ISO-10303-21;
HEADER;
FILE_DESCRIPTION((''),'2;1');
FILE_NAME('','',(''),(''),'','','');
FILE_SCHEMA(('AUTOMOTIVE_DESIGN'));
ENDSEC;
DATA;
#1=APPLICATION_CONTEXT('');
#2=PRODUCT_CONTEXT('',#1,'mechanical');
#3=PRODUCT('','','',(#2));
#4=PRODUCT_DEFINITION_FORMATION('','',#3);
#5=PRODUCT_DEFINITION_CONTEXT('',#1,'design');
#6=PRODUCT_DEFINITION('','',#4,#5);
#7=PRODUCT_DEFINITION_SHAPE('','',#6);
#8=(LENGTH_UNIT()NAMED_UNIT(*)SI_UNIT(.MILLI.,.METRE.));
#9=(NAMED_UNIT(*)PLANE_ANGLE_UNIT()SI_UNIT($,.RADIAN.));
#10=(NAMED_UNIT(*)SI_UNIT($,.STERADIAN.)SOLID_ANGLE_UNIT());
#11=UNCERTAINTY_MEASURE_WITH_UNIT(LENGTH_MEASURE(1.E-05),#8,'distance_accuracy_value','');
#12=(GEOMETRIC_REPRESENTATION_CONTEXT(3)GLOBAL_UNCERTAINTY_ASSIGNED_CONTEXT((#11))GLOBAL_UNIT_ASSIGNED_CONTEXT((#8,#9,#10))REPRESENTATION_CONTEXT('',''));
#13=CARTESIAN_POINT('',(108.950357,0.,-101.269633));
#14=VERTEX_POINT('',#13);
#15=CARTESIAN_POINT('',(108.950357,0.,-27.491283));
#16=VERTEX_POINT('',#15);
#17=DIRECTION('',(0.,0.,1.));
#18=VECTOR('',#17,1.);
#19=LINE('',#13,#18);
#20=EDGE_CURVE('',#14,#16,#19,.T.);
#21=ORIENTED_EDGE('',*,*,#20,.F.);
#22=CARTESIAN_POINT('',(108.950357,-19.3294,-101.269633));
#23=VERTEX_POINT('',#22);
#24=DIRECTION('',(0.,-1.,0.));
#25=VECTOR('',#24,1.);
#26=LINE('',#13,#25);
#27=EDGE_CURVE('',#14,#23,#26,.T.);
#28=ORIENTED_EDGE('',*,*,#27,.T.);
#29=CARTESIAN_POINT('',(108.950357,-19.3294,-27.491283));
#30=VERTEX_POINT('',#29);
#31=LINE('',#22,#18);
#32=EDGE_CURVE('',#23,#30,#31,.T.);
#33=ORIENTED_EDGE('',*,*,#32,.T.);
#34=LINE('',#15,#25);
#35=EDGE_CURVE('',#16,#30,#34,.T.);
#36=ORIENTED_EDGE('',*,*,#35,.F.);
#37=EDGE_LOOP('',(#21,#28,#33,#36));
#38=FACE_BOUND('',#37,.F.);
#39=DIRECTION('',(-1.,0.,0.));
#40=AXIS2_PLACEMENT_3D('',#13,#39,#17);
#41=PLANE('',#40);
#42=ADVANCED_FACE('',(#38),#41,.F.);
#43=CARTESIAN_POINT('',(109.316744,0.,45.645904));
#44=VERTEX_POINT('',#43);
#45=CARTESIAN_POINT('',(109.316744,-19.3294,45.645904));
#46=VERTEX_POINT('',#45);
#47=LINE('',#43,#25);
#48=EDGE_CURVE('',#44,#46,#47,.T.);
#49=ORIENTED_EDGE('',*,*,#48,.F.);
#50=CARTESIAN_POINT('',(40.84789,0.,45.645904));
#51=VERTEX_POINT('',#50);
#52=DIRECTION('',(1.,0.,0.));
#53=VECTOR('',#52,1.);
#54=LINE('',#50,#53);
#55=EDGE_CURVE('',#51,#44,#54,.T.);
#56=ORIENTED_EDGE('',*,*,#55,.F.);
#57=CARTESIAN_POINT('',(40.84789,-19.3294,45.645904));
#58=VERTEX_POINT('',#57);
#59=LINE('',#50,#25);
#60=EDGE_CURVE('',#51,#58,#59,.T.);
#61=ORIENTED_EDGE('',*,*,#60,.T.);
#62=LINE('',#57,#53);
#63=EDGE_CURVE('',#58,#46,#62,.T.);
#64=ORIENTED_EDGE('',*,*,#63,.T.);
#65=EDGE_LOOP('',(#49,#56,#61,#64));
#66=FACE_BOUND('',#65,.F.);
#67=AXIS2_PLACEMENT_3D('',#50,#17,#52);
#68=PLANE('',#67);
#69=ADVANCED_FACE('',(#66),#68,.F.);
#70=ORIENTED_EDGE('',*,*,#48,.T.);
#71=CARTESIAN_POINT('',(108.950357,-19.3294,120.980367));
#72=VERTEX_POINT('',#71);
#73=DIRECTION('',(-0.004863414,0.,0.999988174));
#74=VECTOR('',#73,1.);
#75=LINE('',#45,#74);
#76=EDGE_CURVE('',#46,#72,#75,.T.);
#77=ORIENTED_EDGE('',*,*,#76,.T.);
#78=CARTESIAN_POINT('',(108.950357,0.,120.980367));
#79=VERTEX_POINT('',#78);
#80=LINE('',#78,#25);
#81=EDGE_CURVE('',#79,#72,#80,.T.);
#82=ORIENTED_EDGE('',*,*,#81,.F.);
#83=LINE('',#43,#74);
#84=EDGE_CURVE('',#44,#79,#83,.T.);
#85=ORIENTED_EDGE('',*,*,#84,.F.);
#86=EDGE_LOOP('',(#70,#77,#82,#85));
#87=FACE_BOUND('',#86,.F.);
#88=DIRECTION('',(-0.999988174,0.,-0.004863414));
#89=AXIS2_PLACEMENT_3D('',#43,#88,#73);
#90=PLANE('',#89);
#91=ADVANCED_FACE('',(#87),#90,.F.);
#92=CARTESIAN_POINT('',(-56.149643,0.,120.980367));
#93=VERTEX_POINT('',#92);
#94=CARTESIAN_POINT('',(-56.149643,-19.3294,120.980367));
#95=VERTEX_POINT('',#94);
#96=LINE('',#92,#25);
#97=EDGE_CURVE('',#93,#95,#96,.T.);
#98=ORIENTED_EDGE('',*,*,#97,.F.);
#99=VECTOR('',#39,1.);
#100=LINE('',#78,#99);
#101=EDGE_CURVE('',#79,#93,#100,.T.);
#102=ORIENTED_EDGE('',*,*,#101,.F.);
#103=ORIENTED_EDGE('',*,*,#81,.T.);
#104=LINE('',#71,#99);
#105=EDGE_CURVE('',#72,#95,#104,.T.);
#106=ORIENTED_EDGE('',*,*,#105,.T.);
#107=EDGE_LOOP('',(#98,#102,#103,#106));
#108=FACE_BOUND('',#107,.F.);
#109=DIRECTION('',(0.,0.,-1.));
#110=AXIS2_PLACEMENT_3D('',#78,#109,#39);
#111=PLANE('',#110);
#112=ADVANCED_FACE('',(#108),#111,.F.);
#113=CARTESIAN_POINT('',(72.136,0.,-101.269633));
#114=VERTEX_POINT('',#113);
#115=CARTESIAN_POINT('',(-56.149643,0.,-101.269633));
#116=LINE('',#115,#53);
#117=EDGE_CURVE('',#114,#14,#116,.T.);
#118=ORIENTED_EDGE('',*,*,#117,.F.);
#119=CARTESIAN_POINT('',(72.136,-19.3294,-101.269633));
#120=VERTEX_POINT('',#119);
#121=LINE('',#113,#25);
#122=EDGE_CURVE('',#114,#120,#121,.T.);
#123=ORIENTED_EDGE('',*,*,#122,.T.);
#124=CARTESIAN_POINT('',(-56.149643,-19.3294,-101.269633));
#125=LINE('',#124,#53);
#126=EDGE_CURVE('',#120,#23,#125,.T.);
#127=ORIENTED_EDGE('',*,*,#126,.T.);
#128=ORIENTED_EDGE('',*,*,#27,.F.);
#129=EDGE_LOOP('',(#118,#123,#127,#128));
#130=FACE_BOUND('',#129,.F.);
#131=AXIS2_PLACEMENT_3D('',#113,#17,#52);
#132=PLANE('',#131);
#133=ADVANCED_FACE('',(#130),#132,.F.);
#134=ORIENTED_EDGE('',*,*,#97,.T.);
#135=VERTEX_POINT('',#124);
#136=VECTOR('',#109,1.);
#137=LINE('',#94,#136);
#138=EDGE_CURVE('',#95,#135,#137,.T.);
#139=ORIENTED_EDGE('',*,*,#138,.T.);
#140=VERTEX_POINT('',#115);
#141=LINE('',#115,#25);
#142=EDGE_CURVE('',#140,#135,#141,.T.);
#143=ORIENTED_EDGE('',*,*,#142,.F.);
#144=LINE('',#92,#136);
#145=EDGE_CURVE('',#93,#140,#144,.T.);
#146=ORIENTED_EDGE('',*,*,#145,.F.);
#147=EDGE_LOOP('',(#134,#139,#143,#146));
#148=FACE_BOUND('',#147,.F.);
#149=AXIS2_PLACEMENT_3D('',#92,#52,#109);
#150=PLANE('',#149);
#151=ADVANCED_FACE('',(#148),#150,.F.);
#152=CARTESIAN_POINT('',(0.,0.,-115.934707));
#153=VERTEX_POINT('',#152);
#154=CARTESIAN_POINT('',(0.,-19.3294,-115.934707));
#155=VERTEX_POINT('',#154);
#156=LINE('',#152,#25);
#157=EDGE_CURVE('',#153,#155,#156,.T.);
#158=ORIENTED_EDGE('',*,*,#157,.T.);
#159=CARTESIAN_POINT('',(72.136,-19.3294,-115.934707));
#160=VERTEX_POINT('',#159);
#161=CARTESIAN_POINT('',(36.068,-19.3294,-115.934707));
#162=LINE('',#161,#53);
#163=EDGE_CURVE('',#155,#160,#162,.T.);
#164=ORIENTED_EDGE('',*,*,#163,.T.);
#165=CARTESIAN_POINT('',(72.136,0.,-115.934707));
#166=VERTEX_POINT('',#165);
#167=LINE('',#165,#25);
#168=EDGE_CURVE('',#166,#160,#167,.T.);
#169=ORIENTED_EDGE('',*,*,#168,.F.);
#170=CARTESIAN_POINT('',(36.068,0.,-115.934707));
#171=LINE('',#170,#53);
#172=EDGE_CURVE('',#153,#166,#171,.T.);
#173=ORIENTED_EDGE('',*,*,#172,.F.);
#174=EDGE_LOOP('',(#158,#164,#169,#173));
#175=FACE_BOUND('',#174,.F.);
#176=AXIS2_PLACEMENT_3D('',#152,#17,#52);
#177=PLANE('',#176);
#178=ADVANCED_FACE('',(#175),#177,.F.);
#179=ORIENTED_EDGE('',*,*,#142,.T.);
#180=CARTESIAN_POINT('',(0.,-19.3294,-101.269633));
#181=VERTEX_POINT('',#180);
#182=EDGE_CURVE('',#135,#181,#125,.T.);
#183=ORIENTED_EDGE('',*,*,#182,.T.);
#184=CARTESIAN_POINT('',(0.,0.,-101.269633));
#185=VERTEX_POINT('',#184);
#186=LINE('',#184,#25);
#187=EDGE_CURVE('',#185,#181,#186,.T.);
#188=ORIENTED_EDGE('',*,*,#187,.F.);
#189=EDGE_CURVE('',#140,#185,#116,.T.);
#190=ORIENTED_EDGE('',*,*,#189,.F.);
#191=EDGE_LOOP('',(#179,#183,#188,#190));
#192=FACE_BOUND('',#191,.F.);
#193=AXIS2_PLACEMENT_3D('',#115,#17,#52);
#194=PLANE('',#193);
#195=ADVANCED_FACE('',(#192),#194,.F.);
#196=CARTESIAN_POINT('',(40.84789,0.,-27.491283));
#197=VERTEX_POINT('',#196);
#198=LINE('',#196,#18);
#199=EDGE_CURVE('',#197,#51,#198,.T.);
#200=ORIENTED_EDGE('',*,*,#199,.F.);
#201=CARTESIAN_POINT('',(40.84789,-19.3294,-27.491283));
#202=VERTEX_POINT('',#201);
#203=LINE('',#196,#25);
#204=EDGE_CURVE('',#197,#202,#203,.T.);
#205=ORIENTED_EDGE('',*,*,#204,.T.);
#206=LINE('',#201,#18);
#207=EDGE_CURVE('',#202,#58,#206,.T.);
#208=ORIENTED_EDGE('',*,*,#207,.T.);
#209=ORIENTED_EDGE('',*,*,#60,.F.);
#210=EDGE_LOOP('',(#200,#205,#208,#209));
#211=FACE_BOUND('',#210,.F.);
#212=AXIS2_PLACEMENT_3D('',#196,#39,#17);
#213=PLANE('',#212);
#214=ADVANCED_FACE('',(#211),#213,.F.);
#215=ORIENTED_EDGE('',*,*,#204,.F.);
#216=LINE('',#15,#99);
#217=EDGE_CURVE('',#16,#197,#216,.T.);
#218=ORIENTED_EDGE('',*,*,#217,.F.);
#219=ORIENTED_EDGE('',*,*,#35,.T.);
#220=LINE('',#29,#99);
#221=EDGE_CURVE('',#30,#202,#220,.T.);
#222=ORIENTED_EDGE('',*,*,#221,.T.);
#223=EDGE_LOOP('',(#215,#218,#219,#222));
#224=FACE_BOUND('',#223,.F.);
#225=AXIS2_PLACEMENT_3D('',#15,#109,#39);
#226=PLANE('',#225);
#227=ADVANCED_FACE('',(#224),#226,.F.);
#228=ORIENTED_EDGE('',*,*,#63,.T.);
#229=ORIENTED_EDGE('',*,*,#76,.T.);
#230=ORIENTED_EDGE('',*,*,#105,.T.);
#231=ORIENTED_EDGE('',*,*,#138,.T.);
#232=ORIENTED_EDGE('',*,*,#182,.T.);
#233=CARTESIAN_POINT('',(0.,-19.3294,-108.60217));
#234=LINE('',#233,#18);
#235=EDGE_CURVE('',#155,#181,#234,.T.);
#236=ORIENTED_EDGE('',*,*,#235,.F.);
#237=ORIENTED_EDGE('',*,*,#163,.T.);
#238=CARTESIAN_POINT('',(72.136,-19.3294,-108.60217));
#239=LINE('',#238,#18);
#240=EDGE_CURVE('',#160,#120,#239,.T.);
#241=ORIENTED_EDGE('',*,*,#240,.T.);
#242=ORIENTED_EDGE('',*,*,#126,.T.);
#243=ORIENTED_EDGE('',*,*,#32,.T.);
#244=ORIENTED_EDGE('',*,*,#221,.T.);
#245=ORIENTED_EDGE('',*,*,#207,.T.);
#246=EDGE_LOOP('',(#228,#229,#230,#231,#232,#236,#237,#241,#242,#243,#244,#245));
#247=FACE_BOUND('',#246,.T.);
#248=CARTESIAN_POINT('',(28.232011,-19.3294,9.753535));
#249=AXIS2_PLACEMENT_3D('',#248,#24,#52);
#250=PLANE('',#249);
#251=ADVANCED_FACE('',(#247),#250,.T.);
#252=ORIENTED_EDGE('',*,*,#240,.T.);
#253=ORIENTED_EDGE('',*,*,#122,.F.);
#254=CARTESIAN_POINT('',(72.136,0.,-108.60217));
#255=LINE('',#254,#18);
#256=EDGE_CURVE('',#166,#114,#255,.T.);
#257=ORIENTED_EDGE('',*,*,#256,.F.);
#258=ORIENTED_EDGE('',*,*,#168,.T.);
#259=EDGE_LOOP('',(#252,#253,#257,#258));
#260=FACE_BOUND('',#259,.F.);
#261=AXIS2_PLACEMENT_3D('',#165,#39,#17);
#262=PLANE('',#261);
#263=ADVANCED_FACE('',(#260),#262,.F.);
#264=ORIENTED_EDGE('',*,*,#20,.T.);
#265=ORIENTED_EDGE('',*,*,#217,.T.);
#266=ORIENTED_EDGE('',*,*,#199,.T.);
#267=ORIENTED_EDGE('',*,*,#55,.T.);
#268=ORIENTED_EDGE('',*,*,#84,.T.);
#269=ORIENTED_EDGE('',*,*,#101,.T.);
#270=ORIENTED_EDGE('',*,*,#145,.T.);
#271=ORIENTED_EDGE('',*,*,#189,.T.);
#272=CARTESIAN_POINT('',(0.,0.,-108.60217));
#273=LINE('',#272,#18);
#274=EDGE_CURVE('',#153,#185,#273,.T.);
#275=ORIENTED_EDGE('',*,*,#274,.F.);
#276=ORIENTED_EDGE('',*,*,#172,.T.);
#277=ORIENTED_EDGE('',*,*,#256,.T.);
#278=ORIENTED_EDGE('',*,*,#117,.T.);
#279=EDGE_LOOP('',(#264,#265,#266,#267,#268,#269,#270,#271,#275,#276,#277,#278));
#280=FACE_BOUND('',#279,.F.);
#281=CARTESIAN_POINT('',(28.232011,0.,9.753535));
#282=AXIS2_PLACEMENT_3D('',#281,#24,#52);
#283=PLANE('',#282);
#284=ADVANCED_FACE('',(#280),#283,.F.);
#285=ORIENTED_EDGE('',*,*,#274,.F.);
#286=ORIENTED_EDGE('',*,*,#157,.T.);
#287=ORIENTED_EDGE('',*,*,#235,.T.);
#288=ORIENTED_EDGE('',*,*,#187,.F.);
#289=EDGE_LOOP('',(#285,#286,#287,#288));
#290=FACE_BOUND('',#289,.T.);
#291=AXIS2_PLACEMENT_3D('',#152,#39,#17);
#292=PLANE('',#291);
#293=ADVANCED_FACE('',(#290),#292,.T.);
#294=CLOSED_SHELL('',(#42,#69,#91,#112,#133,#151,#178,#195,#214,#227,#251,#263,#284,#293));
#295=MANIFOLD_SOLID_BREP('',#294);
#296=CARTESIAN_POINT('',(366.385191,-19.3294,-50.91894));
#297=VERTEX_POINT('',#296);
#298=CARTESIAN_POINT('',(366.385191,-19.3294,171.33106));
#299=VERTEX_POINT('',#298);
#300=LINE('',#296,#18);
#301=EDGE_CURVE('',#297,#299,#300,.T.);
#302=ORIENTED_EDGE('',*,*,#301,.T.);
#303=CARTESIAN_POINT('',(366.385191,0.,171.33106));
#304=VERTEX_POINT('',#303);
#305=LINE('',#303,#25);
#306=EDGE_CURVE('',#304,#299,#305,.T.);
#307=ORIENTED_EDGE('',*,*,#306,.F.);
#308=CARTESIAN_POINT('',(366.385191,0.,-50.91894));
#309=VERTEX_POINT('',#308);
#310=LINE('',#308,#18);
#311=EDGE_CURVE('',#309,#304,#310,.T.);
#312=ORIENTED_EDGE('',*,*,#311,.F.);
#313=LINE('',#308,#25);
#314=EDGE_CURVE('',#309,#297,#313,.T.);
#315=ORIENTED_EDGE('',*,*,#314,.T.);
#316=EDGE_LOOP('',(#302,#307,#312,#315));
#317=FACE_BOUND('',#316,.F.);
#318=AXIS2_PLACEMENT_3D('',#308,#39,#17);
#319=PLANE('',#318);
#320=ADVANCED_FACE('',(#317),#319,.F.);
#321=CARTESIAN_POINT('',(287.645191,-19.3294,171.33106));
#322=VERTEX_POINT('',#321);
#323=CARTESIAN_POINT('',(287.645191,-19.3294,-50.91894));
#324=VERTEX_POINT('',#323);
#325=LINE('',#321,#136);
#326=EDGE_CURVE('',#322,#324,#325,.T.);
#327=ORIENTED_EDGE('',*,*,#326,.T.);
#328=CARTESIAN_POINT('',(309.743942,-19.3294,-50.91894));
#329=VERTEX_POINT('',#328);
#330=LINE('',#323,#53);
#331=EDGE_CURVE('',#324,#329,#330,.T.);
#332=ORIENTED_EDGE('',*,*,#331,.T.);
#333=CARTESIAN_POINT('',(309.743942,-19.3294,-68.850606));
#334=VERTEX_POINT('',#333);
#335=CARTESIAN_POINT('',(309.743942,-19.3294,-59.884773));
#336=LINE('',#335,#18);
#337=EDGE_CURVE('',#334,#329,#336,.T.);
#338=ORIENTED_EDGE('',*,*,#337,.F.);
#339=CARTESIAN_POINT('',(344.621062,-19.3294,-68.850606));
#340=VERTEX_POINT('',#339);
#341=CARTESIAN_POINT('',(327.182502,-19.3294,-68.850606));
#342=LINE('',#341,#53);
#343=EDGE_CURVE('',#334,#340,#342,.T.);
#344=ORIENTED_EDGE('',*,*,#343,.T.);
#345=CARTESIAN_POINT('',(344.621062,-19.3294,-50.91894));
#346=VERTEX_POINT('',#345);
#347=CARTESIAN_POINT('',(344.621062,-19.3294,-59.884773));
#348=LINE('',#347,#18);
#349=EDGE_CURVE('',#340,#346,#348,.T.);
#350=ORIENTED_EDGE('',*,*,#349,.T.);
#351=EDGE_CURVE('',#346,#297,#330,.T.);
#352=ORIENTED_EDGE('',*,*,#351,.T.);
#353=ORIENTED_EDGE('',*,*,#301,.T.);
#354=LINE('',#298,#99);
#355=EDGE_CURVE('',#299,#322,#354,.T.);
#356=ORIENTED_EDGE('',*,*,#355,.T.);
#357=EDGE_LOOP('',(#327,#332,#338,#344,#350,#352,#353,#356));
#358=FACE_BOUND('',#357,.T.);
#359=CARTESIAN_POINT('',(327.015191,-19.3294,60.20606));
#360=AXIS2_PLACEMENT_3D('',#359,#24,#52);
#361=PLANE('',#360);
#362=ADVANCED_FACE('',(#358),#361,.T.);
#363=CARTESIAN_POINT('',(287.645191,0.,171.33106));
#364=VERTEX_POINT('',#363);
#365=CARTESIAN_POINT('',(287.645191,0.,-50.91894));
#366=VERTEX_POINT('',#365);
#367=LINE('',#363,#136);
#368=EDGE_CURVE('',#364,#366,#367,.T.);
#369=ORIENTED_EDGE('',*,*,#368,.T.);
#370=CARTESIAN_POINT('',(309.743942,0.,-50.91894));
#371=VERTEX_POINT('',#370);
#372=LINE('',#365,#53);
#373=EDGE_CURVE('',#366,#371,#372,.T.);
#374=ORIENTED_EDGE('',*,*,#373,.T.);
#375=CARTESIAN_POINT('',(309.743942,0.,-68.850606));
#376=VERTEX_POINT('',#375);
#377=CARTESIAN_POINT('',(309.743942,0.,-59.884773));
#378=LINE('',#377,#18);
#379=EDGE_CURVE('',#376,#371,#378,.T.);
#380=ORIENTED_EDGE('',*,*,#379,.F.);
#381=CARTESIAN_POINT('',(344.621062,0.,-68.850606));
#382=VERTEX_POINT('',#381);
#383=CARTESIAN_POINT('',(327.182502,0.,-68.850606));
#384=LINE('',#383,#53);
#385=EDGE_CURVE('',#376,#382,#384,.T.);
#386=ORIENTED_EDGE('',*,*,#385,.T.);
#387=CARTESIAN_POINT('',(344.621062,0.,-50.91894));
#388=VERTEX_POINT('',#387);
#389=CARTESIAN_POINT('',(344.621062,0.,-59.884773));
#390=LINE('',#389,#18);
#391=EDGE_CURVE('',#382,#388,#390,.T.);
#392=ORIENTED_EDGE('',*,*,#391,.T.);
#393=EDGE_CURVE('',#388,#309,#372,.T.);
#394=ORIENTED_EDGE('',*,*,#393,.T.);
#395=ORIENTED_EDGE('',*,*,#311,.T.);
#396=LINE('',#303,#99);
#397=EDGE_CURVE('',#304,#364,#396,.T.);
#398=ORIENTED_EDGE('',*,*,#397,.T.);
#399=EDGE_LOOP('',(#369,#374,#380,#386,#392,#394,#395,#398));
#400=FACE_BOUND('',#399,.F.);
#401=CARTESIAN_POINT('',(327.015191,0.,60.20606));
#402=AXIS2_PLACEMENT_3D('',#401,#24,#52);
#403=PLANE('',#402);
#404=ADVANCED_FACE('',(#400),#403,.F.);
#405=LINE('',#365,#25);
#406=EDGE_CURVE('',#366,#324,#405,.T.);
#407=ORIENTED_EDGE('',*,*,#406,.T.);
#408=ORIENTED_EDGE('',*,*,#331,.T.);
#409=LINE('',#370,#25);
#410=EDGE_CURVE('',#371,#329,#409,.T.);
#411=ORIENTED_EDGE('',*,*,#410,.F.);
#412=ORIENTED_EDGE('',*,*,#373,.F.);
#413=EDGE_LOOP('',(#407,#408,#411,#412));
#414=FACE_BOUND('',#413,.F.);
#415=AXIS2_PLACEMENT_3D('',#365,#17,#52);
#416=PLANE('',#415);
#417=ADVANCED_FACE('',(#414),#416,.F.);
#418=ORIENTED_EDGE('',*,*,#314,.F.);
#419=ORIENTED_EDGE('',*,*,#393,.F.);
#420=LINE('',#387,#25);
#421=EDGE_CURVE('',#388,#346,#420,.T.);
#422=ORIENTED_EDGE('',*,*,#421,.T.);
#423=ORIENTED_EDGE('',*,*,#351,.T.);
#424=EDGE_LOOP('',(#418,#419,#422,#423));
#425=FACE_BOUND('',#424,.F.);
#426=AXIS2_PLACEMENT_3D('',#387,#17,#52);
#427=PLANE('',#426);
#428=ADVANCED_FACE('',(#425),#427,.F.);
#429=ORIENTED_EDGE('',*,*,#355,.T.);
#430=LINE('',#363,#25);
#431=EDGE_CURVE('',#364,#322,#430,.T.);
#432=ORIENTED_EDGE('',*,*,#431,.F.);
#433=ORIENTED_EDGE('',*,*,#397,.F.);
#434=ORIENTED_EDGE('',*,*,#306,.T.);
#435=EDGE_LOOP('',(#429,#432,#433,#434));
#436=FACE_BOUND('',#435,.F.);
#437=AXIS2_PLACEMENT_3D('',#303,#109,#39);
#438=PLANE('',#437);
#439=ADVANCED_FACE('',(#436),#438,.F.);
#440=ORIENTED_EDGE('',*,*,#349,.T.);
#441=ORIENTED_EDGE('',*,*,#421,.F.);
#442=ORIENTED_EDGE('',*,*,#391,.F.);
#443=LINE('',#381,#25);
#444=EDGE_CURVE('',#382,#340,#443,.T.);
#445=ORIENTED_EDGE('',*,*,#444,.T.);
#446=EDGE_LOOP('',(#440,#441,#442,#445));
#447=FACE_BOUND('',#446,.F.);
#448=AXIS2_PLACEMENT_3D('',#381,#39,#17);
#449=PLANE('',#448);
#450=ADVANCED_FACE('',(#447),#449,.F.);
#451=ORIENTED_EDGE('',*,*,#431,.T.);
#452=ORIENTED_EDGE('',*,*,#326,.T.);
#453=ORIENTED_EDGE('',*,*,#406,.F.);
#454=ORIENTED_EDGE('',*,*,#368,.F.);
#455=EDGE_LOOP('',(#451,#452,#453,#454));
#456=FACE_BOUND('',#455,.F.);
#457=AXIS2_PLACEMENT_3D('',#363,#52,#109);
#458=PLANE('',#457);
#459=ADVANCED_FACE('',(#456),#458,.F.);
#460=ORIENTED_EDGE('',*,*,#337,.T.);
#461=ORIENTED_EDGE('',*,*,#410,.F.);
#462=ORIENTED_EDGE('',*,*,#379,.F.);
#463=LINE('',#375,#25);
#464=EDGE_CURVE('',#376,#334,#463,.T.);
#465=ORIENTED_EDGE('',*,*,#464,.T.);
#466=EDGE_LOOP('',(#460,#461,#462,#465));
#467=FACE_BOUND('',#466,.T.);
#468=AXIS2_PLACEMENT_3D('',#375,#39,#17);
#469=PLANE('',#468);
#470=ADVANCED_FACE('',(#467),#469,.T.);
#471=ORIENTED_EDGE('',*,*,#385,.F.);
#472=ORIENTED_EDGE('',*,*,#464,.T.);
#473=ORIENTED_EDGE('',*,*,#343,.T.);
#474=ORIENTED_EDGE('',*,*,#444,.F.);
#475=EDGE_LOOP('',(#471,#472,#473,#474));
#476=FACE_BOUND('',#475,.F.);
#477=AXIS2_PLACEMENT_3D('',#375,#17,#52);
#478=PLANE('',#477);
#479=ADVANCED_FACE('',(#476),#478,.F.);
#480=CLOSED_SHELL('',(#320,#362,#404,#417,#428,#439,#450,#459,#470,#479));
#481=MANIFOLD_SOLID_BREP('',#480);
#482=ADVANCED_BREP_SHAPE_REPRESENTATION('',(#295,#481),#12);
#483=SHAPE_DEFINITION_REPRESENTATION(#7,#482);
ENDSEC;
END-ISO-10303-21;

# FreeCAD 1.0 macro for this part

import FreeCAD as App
import Part
import Sketcher

V = App.Vector
Q = App.Units.Quantity


def add_polygon(sketch, points):
    """Adds a closed chain of lines whose ends are joined by coincident constraints."""
    first, n = sketch.GeometryCount, len(points)
    for a, b in zip(points, points[1:] + points[:1]):
        sketch.addGeometry(Part.LineSegment(App.Vector(*a, 0), App.Vector(*b, 0)), False)
    for i in range(n):
        sketch.addConstraint(Sketcher.Constraint("Coincident", first + i, 2, first + (i + 1) % n, 1))

doc = App.newDocument("Part")
body = doc.addObject("PartDesign::Body", "Body")
body.AllowCompound = True

# Sketch on XZ plane
sketch1 = body.newObject("Sketcher::SketchObject", "Sketch")
sketch1.AttachmentSupport = (doc.getObject("XZ_Plane"), [""])
sketch1.MapMode = "FlatFace"
add_polygon(sketch1, [(109, 121), (-56, 121), (-56, -101), (0, -101), (0, -116), (72, -116), (72, -101), (109, -101), (109, -27), (41, -27), (41, 46), (109, 46)])  # lines 0-11
add_polygon(sketch1, [(366, 171), (288, 171), (288, -51), (310, -51), (310, -69), (345, -69), (345, -51), (366, -51)])  # lines 12-19
sketch1.addConstraint([
    Sketcher.Constraint("Horizontal", 0),
    Sketcher.Constraint("Vertical", 1),
    Sketcher.Constraint("Horizontal", 2),
    Sketcher.Constraint("Vertical", 3),
    Sketcher.Constraint("Horizontal", 4),
    Sketcher.Constraint("Vertical", 5),
    Sketcher.Constraint("Horizontal", 6),
    Sketcher.Constraint("Vertical", 7),
    Sketcher.Constraint("Horizontal", 8),
    Sketcher.Constraint("Vertical", 9),
    Sketcher.Constraint("Horizontal", 10),
    Sketcher.Constraint("Horizontal", 12),
    Sketcher.Constraint("Vertical", 13),
    Sketcher.Constraint("Horizontal", 14),
    Sketcher.Constraint("Vertical", 15),
    Sketcher.Constraint("Horizontal", 16),
    Sketcher.Constraint("Vertical", 17),
    Sketcher.Constraint("Horizontal", 18),
    Sketcher.Constraint("Vertical", 19),
    Sketcher.Constraint("PointOnObject", 2, 2, -2),
    Sketcher.Constraint("Horizontal", 2, 2, 5, 2),
    Sketcher.Constraint("Horizontal", 14, 2, 17, 2),
    Sketcher.Constraint("Vertical", 7, 2, 11, 2),
    Sketcher.Constraint("Equal", 1, 13),
    Sketcher.Constraint("DistanceX", 0, 2, 0, 1, Q("6.5 in")),
    Sketcher.Constraint("DistanceX", 12, 2, 12, 1, Q("3.1 in")),
    Sketcher.Constraint("DistanceX", 4, 1, 4, 2, Q("2.84 in")),
    Sketcher.Constraint("DistanceY", 1, 2, 1, 1, Q("8.75 in")),
    Sketcher.Constraint("DistanceX", 14, 1, 14, 2, Q("22.09875 mm")),
    Sketcher.Constraint("DistanceX", 16, 1, 16, 2, Q("34.877121 mm")),
    Sketcher.Constraint("DistanceY", 7, 1, 7, 2, Q("73.77835 mm")),
    Sketcher.Constraint("DistanceX", 9, 2, 12, 2, Q("246.797301 mm")),
    Sketcher.Constraint("DistanceX", 2, 1, 2, 2, Q("56.149643 mm")),
    Sketcher.Constraint("DistanceX", 8, 2, 8, 1, Q("68.102467 mm")),
    Sketcher.Constraint("DistanceX", 10, 1, 10, 2, Q("68.468854 mm")),
    Sketcher.Constraint("DistanceY", 3, 2, 3, 1, Q("14.665074 mm")),
    Sketcher.Constraint("DistanceY", 9, 1, 9, 2, Q("73.137187 mm")),
    Sketcher.Constraint("DistanceY", 15, 2, 15, 1, Q("17.931666 mm")),
    Sketcher.Constraint("DistanceY", -1, 1, 12, 2, Q("171.33106 mm")),
    Sketcher.Constraint("DistanceY", 15, 2, 10, 2, Q("114.49651 mm")),
])
pad1 = body.newObject("PartDesign::Pad", "Pad")
pad1.Profile = sketch1
pad1.Length = Q("0.761 in")

doc.recompute()
